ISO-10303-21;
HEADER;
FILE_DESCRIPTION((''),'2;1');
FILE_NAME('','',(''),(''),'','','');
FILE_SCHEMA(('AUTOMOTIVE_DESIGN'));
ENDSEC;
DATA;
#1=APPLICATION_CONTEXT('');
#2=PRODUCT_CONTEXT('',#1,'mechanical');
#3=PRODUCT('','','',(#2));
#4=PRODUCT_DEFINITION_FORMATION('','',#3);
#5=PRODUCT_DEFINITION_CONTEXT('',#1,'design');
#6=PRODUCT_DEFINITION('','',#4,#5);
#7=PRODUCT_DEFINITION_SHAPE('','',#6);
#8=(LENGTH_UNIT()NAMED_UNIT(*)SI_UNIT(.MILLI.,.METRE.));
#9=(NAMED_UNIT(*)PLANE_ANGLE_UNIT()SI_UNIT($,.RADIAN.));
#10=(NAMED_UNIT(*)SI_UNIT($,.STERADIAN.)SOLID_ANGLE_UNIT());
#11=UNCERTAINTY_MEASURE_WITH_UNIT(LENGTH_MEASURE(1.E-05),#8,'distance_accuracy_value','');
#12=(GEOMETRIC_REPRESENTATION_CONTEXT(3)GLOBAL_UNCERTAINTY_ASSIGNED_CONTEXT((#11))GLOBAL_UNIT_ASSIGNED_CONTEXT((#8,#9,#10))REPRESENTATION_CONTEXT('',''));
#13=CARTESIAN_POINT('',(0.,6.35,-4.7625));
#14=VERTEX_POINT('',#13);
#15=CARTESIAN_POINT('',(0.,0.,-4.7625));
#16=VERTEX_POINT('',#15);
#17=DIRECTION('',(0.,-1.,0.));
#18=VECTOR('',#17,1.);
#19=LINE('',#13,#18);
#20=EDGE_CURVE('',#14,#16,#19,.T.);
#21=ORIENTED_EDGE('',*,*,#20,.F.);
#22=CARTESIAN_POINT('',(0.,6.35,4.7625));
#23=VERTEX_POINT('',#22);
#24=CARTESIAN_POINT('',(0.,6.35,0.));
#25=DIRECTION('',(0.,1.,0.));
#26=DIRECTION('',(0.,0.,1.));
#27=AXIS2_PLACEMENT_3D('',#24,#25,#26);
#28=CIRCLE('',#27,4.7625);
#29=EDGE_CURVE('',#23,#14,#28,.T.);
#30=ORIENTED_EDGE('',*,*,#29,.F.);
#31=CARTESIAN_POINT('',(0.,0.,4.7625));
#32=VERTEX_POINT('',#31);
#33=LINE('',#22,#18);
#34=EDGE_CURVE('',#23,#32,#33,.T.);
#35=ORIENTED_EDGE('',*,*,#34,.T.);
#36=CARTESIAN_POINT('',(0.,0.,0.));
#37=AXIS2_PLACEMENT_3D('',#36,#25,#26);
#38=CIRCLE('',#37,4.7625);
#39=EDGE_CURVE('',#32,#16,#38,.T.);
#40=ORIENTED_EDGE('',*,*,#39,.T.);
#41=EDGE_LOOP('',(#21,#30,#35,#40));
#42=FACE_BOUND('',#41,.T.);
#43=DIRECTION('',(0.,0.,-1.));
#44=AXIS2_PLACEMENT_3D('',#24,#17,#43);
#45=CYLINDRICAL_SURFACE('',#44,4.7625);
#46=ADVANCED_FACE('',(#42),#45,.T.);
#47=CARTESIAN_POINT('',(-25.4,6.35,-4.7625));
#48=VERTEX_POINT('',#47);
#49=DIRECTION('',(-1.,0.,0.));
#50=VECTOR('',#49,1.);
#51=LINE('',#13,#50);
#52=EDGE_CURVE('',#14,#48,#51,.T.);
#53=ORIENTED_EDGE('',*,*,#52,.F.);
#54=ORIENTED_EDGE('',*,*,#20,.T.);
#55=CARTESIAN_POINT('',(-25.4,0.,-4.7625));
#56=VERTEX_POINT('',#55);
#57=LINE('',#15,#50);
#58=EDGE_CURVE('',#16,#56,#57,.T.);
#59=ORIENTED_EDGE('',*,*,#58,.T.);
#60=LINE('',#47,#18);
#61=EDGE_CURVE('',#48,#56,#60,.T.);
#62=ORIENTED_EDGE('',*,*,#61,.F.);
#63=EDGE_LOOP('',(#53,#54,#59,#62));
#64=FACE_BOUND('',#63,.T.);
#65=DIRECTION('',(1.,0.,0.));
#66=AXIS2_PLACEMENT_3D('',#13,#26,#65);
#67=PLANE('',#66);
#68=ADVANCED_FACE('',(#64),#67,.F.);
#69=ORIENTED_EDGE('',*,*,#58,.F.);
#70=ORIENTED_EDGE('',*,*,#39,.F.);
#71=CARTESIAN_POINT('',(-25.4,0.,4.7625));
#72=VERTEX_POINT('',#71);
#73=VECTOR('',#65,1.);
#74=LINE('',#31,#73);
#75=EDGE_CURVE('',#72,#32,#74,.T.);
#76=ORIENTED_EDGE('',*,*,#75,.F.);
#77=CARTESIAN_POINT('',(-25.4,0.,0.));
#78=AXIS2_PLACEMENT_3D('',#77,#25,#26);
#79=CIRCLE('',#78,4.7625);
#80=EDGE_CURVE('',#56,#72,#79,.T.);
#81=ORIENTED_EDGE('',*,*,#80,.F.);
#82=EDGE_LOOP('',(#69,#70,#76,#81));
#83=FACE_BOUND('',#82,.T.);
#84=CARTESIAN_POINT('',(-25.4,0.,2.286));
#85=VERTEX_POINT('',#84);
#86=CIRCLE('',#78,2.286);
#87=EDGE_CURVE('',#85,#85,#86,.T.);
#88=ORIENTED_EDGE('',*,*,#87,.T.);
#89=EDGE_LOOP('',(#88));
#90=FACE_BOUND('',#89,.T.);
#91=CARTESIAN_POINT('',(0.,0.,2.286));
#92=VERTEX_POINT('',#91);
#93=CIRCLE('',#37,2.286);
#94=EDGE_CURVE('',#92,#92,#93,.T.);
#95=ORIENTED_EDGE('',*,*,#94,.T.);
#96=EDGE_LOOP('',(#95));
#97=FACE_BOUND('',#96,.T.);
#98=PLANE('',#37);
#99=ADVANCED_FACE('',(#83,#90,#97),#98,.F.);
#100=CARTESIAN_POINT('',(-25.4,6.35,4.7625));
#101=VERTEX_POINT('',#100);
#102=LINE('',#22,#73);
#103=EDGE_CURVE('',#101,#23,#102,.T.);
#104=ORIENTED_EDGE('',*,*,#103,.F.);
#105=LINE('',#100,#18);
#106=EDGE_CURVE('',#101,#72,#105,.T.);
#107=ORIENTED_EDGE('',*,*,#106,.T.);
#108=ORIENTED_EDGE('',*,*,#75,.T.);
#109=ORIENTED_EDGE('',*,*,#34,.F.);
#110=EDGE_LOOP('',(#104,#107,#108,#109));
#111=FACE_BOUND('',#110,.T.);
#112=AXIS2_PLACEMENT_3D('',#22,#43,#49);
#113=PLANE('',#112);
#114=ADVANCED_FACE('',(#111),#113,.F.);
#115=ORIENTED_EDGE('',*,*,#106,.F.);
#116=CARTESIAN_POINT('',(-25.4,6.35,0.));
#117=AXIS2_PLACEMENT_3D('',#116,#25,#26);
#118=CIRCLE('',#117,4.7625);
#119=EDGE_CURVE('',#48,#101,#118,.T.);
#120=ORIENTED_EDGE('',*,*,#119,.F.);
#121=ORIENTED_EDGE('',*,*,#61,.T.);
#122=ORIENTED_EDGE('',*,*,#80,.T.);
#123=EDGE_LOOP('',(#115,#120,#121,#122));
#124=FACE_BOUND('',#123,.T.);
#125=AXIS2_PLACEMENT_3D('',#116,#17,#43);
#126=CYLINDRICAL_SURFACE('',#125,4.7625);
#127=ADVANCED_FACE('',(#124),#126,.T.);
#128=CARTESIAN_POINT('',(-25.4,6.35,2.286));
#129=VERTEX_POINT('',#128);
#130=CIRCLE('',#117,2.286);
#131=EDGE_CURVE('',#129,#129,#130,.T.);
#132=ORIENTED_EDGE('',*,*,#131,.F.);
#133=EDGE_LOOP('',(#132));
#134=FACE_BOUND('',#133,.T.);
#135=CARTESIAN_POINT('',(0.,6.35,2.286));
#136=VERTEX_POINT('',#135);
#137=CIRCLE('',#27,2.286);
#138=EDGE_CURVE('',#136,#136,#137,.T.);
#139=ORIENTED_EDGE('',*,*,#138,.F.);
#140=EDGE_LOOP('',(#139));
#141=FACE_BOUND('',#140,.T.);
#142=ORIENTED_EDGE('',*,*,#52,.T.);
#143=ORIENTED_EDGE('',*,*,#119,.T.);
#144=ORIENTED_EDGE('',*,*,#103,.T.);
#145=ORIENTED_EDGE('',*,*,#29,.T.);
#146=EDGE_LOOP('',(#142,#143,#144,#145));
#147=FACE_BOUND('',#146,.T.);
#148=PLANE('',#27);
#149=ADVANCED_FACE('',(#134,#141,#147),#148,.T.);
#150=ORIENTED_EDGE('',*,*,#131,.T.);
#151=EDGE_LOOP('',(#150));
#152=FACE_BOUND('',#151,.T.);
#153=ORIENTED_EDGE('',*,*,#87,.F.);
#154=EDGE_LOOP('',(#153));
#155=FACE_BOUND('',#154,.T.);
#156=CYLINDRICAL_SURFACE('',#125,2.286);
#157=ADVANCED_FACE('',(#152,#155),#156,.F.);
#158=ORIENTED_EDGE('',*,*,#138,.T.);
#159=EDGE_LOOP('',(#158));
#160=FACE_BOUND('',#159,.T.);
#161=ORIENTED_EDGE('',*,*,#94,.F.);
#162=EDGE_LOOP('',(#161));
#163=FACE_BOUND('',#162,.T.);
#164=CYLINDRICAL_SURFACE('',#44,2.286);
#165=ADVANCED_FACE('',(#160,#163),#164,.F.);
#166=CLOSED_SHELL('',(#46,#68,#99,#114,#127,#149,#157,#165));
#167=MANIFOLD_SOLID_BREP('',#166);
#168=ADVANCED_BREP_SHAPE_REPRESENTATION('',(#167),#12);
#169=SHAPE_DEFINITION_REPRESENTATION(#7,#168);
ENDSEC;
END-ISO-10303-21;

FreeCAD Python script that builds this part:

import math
import FreeCAD as App
import Part
import Sketcher
Q = App.Units.Quantity

doc = App.newDocument("Part")
body = doc.addObject("PartDesign::Body", "Body")

# Sketch on XZ plane
sketch1 = body.newObject("Sketcher::SketchObject", "Sketch")
sketch1.AttachmentSupport = (doc.getObject("XZ_Plane"), [""])
sketch1.MapMode = "FlatFace"
sketch1.addGeometry(Part.LineSegment(App.Vector(-25.4, 4.8, 0), App.Vector(0, 4.8, 0)), False)
sketch1.addGeometry(Part.ArcOfCircle(Part.Circle(App.Vector(0, 0, 0), App.Vector(0, 0, 1), 4.8), math.radians(-90), math.radians(90)), False)
sketch1.addGeometry(Part.LineSegment(App.Vector(0, -4.8, 0), App.Vector(-25.4, -4.8, 0)), False)
sketch1.addGeometry(Part.ArcOfCircle(Part.Circle(App.Vector(-25.4, 0, 0), App.Vector(0, 0, 1), 4.8), math.radians(90), math.radians(270)), False)
sketch1.addGeometry(Part.Circle(App.Vector(0, 0, 0), App.Vector(0, 0, 1), 2.3), False)
sketch1.addGeometry(Part.Circle(App.Vector(-25.4, 0, 0), App.Vector(0, 0, 1), 2.3), False)
sketch1.addConstraint(Sketcher.Constraint("Tangent", 0, 2, 1, 2))
sketch1.addConstraint(Sketcher.Constraint("Tangent", 1, 1, 2, 1))
sketch1.addConstraint(Sketcher.Constraint("Tangent", 2, 2, 3, 2))
sketch1.addConstraint(Sketcher.Constraint("Tangent", 3, 1, 0, 1))
sketch1.addConstraint(Sketcher.Constraint("Horizontal", 0))
sketch1.addConstraint(Sketcher.Constraint("Horizontal", 2))
sketch1.addConstraint(Sketcher.Constraint("Coincident", 1, 3, -1, 1))
sketch1.addConstraint(Sketcher.Constraint("Coincident", 4, 3, -1, 1))
sketch1.addConstraint(Sketcher.Constraint("Coincident", 5, 3, 3, 3))
sketch1.addConstraint(Sketcher.Constraint("Equal", 4, 5))
sketch1.addConstraint(Sketcher.Constraint("Diameter", 4, Q("0.18 in")))
sketch1.addConstraint(Sketcher.Constraint("DistanceX", 0, 1, 0, 2, Q("1 in")))
sketch1.addConstraint(Sketcher.Constraint("Radius", 1, Q("0.1875 in")))
pad1 = body.newObject("PartDesign::Pad", "Pad")
pad1.Profile = sketch1
pad1.Length = Q("0.25 in")
pad1.Reversed = True

doc.recompute()
